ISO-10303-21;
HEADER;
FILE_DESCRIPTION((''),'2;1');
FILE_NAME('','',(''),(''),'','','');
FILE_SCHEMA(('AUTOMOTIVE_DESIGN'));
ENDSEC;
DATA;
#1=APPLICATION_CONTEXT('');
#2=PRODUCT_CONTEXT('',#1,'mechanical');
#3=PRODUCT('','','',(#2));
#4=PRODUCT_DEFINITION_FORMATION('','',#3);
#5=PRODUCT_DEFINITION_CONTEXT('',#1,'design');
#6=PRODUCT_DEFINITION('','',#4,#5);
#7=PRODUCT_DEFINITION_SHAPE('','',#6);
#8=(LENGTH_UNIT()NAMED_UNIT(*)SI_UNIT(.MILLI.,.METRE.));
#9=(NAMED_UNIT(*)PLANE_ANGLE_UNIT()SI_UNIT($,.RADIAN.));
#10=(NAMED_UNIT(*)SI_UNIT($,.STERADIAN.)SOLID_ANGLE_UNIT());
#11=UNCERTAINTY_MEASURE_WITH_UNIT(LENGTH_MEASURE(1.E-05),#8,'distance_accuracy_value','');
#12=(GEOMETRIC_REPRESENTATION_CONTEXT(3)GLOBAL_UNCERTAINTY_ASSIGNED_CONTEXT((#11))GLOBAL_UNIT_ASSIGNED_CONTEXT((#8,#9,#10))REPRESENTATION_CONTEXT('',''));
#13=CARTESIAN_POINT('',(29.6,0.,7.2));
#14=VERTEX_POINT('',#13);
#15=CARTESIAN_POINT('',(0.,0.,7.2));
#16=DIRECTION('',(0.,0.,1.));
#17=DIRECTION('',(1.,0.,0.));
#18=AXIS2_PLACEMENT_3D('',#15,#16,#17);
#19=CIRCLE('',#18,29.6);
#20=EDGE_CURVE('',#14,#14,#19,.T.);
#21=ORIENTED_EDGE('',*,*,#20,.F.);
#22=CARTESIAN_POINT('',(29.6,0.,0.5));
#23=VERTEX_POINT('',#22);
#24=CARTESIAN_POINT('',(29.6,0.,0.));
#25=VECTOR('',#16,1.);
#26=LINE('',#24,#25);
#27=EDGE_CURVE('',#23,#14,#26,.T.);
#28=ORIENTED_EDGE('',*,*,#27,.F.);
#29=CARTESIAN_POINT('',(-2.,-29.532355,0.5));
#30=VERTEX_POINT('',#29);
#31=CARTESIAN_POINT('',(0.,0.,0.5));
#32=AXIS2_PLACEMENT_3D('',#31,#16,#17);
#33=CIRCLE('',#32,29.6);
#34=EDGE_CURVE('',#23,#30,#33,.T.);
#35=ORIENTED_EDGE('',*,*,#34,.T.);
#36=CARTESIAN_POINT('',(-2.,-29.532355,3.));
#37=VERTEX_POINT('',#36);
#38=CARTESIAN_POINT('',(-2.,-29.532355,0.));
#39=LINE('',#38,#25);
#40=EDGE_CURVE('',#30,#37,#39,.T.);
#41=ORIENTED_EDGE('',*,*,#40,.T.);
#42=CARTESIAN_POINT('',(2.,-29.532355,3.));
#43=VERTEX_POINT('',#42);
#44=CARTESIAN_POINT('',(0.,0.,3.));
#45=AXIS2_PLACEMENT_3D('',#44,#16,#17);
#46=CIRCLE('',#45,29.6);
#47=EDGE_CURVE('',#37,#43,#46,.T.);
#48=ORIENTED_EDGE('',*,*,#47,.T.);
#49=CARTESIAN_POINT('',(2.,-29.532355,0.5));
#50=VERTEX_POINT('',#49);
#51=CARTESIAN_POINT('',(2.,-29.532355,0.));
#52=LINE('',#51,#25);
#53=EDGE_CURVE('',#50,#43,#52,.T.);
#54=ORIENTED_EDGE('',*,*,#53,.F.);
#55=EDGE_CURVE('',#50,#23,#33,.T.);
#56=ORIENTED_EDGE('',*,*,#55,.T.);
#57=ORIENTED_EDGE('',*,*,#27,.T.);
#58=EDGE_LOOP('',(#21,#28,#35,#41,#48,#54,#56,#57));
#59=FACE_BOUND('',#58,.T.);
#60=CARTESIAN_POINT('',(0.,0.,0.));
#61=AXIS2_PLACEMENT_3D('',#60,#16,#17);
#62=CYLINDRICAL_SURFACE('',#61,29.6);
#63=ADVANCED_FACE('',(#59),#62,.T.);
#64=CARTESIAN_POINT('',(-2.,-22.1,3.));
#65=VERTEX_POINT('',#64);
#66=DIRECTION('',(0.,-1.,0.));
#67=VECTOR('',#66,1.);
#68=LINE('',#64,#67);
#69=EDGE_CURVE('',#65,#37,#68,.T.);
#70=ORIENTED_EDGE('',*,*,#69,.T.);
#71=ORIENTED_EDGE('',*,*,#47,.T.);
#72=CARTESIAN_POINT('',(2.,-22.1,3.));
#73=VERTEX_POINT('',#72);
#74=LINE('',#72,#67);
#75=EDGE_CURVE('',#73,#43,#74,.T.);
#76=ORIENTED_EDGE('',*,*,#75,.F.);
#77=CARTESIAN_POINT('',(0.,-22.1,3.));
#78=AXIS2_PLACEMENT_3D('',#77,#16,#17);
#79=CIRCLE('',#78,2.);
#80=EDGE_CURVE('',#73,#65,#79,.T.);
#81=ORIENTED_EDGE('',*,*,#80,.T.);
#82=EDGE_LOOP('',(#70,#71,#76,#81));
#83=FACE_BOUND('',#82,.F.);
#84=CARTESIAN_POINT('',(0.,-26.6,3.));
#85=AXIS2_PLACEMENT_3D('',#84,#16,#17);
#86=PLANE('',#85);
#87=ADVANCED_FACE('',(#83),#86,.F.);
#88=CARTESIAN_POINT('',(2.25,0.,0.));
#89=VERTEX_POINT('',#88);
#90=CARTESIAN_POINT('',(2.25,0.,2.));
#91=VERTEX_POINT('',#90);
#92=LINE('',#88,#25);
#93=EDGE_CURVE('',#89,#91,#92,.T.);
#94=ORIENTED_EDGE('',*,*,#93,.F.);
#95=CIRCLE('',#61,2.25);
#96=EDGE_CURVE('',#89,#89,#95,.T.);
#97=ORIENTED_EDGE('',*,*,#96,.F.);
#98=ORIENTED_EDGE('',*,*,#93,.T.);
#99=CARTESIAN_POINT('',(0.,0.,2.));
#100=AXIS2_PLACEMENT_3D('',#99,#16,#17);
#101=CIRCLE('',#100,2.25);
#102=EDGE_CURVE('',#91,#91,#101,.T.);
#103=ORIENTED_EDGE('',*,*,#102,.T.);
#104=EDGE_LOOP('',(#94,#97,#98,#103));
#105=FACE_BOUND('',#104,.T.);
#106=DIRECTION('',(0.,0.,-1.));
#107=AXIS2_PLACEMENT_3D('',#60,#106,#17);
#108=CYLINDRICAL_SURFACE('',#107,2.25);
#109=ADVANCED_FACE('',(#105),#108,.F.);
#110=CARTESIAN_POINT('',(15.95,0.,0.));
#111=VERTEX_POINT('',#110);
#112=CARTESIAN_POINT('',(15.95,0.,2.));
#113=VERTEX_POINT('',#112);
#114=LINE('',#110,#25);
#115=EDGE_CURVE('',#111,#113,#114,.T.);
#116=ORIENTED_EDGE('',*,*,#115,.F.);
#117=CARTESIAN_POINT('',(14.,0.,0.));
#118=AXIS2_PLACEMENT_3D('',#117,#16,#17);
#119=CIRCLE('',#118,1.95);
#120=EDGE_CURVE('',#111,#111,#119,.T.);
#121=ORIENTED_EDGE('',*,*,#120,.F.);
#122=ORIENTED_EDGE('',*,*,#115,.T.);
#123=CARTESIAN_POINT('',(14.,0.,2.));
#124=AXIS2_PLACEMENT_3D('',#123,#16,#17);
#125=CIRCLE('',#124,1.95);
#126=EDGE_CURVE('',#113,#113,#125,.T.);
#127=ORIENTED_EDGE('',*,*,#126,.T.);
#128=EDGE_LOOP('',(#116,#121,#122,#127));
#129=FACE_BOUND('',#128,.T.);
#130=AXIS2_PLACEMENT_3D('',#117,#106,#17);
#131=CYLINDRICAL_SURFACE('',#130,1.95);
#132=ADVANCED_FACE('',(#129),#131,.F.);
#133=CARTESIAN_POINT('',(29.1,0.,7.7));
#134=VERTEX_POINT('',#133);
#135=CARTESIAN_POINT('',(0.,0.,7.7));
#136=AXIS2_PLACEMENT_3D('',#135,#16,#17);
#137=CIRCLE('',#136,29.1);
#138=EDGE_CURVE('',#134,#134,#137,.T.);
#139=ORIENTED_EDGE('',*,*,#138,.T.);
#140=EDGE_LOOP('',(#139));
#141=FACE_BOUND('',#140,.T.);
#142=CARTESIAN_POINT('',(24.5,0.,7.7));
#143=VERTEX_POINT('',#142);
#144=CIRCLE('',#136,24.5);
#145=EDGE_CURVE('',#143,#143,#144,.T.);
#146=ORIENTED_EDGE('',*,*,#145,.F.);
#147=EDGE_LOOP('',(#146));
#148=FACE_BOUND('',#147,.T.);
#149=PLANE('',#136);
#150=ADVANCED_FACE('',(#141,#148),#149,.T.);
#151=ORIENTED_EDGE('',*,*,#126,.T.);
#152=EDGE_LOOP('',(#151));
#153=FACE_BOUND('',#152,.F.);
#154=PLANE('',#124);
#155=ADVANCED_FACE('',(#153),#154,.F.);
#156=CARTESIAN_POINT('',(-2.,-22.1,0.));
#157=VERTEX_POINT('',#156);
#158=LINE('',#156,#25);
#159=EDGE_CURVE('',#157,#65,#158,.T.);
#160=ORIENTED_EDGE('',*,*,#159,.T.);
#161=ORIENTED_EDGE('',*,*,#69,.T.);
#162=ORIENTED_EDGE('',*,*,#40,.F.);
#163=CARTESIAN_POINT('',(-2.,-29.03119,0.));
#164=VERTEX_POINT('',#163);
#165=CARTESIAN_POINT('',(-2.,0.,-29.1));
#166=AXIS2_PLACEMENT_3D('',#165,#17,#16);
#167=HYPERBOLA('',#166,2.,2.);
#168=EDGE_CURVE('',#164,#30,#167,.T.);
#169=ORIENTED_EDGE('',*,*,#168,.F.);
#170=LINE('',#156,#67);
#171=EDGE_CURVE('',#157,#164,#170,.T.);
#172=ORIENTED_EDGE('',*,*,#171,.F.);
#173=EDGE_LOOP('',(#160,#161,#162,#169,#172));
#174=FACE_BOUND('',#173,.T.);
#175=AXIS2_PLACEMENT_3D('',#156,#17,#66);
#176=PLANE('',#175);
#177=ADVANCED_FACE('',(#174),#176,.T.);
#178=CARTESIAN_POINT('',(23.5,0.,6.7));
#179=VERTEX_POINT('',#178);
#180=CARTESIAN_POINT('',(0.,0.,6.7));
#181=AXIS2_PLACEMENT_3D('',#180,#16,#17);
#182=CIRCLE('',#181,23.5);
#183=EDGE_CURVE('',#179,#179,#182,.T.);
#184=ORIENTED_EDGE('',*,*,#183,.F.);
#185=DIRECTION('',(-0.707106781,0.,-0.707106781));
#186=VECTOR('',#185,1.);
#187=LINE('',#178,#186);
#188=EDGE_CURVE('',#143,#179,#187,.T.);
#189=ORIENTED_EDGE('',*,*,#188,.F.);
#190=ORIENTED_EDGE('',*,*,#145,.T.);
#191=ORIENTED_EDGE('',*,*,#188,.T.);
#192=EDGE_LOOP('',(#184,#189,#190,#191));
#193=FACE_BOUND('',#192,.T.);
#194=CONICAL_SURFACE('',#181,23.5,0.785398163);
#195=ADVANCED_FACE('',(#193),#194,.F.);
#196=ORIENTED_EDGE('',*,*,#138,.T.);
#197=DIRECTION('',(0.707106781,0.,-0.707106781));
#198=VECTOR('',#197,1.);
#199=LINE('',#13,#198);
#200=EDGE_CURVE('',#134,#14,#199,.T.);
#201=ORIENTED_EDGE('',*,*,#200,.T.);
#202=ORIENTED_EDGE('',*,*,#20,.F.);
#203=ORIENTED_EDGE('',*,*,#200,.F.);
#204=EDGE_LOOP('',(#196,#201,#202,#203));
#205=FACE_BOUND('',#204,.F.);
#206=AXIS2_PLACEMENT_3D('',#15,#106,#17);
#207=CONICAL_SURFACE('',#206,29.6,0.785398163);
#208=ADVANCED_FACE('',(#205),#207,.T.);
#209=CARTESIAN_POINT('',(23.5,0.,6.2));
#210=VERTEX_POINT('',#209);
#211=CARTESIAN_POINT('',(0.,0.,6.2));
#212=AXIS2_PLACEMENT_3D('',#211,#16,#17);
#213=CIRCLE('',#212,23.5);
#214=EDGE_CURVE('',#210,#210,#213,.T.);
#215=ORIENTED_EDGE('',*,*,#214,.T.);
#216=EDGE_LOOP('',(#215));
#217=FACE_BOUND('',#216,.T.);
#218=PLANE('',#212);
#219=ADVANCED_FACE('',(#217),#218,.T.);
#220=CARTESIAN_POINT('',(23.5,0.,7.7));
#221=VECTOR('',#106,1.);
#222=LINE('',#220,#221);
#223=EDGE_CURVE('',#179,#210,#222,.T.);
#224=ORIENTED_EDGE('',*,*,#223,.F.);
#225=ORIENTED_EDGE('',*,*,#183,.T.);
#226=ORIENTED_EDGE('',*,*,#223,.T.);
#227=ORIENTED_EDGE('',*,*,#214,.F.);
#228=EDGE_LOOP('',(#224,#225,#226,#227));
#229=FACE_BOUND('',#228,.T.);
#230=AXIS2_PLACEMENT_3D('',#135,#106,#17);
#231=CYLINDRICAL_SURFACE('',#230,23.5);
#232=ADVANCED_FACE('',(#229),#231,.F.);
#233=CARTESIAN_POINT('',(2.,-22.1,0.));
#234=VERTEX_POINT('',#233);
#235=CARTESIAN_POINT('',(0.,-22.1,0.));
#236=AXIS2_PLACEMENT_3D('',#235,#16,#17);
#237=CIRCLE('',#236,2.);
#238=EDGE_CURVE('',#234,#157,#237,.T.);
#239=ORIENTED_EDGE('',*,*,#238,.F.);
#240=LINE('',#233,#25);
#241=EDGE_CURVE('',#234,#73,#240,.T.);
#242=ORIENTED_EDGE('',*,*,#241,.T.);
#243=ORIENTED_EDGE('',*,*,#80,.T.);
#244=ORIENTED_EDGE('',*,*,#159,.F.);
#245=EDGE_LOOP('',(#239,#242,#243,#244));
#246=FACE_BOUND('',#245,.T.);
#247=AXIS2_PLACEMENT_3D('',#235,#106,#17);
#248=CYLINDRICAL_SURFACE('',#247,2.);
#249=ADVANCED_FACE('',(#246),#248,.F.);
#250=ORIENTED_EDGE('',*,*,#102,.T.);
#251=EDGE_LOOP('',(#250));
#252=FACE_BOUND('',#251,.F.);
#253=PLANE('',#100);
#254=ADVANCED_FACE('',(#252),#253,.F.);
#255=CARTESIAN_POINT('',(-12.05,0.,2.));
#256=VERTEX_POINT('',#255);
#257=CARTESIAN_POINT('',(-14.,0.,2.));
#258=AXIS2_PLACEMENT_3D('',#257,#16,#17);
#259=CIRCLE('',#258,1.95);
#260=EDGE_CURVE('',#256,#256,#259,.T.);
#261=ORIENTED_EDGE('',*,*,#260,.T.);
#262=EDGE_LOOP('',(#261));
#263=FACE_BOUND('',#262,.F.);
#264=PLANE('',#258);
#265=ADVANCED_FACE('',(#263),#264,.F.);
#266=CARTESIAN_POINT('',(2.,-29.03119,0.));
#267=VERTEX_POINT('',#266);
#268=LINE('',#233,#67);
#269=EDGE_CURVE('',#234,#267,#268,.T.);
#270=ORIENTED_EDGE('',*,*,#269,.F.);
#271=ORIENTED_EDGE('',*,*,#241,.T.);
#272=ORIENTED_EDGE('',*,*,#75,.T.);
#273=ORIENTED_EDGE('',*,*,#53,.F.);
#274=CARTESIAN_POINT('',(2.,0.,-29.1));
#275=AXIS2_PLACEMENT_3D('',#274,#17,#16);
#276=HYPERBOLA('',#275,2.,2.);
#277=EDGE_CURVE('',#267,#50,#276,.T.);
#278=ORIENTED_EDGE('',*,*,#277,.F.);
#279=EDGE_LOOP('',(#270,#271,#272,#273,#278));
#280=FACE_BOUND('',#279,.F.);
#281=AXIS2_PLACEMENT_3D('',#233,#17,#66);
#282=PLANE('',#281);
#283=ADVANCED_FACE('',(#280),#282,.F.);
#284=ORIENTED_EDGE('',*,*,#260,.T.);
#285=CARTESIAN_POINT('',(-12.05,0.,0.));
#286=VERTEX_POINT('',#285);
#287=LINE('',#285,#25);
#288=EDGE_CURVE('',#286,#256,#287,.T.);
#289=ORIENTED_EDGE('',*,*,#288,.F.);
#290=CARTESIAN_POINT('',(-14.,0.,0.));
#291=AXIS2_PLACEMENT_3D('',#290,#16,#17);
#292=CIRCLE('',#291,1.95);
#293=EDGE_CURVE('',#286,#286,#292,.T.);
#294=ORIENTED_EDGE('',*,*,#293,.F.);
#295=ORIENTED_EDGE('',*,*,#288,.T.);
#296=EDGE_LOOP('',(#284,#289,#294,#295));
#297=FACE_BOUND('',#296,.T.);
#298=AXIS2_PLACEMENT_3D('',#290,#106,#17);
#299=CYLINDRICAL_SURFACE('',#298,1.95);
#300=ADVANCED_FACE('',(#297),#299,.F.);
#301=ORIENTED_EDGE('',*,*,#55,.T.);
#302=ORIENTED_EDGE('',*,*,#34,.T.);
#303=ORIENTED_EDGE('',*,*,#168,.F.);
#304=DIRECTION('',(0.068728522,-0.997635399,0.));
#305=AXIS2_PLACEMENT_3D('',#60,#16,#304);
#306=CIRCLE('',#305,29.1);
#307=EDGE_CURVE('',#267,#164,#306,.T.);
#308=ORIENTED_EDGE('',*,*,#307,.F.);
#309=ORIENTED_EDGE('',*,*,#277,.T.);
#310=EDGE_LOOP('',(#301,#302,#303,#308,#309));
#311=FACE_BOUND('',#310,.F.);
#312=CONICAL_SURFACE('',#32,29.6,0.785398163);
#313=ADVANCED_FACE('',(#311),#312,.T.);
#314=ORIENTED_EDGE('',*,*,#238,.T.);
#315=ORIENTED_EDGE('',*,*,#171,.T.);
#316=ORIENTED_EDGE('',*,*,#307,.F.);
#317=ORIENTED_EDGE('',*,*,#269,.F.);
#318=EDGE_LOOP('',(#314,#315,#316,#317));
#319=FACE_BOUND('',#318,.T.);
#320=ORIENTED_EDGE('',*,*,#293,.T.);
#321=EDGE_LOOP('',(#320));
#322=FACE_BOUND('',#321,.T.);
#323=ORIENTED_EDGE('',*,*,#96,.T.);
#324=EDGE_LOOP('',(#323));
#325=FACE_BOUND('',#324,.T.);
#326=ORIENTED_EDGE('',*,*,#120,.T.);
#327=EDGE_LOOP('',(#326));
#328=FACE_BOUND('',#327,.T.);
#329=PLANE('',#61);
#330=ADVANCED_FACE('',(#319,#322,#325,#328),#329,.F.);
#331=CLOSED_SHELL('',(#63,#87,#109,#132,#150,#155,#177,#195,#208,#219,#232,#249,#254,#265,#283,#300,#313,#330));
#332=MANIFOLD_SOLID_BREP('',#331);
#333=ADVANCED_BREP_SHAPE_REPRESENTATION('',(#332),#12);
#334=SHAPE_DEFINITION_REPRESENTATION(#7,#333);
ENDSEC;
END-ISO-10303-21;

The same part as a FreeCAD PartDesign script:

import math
import FreeCAD as App
import Part
import Sketcher

V = App.Vector


def edges_at(feature, points):
    """Names of the edges that pass closest to the given points."""
    edges = feature.Shape.Edges
    near = lambda p: min(range(len(edges)), key=lambda i: edges[i].distToShape(Part.Vertex(*p))[0])
    return sorted({f"Edge{near(p) + 1}" for p in points})


def add_polygon(sketch, points):
    """Adds a closed chain of lines whose ends are joined by coincident constraints."""
    first, n = sketch.GeometryCount, len(points)
    for a, b in zip(points, points[1:] + points[:1]):
        sketch.addGeometry(Part.LineSegment(App.Vector(*a, 0), App.Vector(*b, 0)), False)
    for i in range(n):
        sketch.addConstraint(Sketcher.Constraint("Coincident", first + i, 2, first + (i + 1) % n, 1))

doc = App.newDocument("Part")
body = doc.addObject("PartDesign::Body", "Body")

# Sketch on XZ plane
sketch1 = doc.addObject("Sketcher::SketchObject", "Sketch")
body.addObject(sketch1)
sketch1.AttachmentSupport = (doc.XZ_Plane, [""])
sketch1.MapMode = "FlatFace"
add_polygon(sketch1, [(0, 0), (29.6, 0), (29.6, 7.7), (23.5, 7.7), (23.5, 6.2), (0, 6.2)])  # lines 0-5
sketch1.addConstraint(Sketcher.Constraint("Horizontal", 0))
sketch1.addConstraint(Sketcher.Constraint("Vertical", 1))
sketch1.addConstraint(Sketcher.Constraint("Horizontal", 2))
sketch1.addConstraint(Sketcher.Constraint("Vertical", 3))
sketch1.addConstraint(Sketcher.Constraint("Horizontal", 4))
sketch1.addConstraint(Sketcher.Constraint("Vertical", 5))
sketch1.addConstraint(Sketcher.Constraint("Coincident", 5, 2, -1, 1))
sketch1.addConstraint(Sketcher.Constraint("DistanceX", 0, 1, 0, 2, 29.6))
sketch1.addConstraint(Sketcher.Constraint("DistanceX", 2, 2, 2, 1, 6.1))
sketch1.addConstraint(Sketcher.Constraint("DistanceY", 1, 1, 1, 2, 7.7))
sketch1.addConstraint(Sketcher.Constraint("DistanceY", 3, 2, 3, 1, 1.5))
revolution = doc.addObject("PartDesign::Revolution", "Revolution")
body.addObject(revolution)
revolution.Profile = sketch1
revolution.ReferenceAxis = (sketch1, ["V_Axis"])
revolution.Angle = 360
doc.recompute()

chamfer = doc.addObject("PartDesign::Chamfer", "Chamfer")
body.addObject(chamfer)
chamfer.Base = (revolution, edges_at(revolution, [(-23.5, 0, 7.7)]))
chamfer.Size = 1

# Sketch on XY plane
sketch2 = doc.addObject("Sketcher::SketchObject", "Sketch001")
body.addObject(sketch2)
sketch2.AttachmentSupport = (doc.XY_Plane, [""])
sketch2.MapMode = "FlatFace"
sketch2.addGeometry(Part.Circle(V(0, 0, 0), V(0, 0, 1), 2.2), False)
sketch2.addGeometry(Part.Circle(V(14, 0, 0), V(0, 0, 1), 1.9), False)
sketch2.addGeometry(Part.Circle(V(-14, 0, 0), V(0, 0, 1), 1.9), False)
sketch2.addConstraint(Sketcher.Constraint("Coincident", 0, 3, -1, 1))
sketch2.addConstraint(Sketcher.Constraint("Equal", 1, 2))
sketch2.addConstraint(Sketcher.Constraint("Symmetric", 1, 3, 2, 3, -1, 1))
sketch2.addConstraint(Sketcher.Constraint("PointOnObject", 1, 3, -1))
sketch2.addConstraint(Sketcher.Constraint("Diameter", 0, 4.5))
sketch2.addConstraint(Sketcher.Constraint("Diameter", 1, 3.9))
sketch2.addConstraint(Sketcher.Constraint("DistanceX", -1, 1, 1, 3, 14.0))
pocket1 = doc.addObject("PartDesign::Pocket", "Pocket")
body.addObject(pocket1)
pocket1.Profile = sketch2
pocket1.Length = 2
pocket1.Reversed = True
doc.recompute()

chamfer2 = doc.addObject("PartDesign::Chamfer", "Chamfer001")
body.addObject(chamfer2)
chamfer2.Base = (pocket1, edges_at(pocket1, [(-29.6, 0, 7.7), (-29.6, 0, 0)]))
chamfer2.Size = 0.5

# Sketch on XY plane
sketch3 = doc.addObject("Sketcher::SketchObject", "Sketch002")
body.addObject(sketch3)
sketch3.AttachmentSupport = (doc.XY_Plane, [""])
sketch3.MapMode = "FlatFace"
sketch3.addGeometry(Part.ArcOfCircle(Part.Circle(V(0, -22.1, 0), V(0, 0, 1), 2), math.radians(0), math.radians(180)), False)
sketch3.addGeometry(Part.LineSegment(V(-2, -22.1, 0), V(-2, -31.1, 0)), False)
sketch3.addGeometry(Part.ArcOfCircle(Part.Circle(V(0, -31.1, 0), V(0, 0, 1), 2), math.radians(180), math.radians(360)), False)
sketch3.addGeometry(Part.LineSegment(V(2, -31.1, 0), V(2, -22.1, 0)), False)
sketch3.addConstraint(Sketcher.Constraint("Tangent", 0, 2, 1, 1))
sketch3.addConstraint(Sketcher.Constraint("Tangent", 1, 2, 2, 1))
sketch3.addConstraint(Sketcher.Constraint("Tangent", 2, 2, 3, 1))
sketch3.addConstraint(Sketcher.Constraint("Tangent", 3, 2, 0, 1))
sketch3.addConstraint(Sketcher.Constraint("Vertical", 1))
sketch3.addConstraint(Sketcher.Constraint("Vertical", 3))
sketch3.addConstraint(Sketcher.Constraint("PointOnObject", 0, 3, -2))
sketch3.addConstraint(Sketcher.Constraint("Radius", 0, 2.0))
sketch3.addConstraint(Sketcher.Constraint("DistanceY", 1, 2, 1, 1, 9.0))
sketch3.addConstraint(Sketcher.Constraint("DistanceY", 0, 3, -1, 1, 22.1))
pocket2 = doc.addObject("PartDesign::Pocket", "Pocket001")
body.addObject(pocket2)
pocket2.Profile = sketch3
pocket2.Length = 3
pocket2.Reversed = True

doc.recompute()
